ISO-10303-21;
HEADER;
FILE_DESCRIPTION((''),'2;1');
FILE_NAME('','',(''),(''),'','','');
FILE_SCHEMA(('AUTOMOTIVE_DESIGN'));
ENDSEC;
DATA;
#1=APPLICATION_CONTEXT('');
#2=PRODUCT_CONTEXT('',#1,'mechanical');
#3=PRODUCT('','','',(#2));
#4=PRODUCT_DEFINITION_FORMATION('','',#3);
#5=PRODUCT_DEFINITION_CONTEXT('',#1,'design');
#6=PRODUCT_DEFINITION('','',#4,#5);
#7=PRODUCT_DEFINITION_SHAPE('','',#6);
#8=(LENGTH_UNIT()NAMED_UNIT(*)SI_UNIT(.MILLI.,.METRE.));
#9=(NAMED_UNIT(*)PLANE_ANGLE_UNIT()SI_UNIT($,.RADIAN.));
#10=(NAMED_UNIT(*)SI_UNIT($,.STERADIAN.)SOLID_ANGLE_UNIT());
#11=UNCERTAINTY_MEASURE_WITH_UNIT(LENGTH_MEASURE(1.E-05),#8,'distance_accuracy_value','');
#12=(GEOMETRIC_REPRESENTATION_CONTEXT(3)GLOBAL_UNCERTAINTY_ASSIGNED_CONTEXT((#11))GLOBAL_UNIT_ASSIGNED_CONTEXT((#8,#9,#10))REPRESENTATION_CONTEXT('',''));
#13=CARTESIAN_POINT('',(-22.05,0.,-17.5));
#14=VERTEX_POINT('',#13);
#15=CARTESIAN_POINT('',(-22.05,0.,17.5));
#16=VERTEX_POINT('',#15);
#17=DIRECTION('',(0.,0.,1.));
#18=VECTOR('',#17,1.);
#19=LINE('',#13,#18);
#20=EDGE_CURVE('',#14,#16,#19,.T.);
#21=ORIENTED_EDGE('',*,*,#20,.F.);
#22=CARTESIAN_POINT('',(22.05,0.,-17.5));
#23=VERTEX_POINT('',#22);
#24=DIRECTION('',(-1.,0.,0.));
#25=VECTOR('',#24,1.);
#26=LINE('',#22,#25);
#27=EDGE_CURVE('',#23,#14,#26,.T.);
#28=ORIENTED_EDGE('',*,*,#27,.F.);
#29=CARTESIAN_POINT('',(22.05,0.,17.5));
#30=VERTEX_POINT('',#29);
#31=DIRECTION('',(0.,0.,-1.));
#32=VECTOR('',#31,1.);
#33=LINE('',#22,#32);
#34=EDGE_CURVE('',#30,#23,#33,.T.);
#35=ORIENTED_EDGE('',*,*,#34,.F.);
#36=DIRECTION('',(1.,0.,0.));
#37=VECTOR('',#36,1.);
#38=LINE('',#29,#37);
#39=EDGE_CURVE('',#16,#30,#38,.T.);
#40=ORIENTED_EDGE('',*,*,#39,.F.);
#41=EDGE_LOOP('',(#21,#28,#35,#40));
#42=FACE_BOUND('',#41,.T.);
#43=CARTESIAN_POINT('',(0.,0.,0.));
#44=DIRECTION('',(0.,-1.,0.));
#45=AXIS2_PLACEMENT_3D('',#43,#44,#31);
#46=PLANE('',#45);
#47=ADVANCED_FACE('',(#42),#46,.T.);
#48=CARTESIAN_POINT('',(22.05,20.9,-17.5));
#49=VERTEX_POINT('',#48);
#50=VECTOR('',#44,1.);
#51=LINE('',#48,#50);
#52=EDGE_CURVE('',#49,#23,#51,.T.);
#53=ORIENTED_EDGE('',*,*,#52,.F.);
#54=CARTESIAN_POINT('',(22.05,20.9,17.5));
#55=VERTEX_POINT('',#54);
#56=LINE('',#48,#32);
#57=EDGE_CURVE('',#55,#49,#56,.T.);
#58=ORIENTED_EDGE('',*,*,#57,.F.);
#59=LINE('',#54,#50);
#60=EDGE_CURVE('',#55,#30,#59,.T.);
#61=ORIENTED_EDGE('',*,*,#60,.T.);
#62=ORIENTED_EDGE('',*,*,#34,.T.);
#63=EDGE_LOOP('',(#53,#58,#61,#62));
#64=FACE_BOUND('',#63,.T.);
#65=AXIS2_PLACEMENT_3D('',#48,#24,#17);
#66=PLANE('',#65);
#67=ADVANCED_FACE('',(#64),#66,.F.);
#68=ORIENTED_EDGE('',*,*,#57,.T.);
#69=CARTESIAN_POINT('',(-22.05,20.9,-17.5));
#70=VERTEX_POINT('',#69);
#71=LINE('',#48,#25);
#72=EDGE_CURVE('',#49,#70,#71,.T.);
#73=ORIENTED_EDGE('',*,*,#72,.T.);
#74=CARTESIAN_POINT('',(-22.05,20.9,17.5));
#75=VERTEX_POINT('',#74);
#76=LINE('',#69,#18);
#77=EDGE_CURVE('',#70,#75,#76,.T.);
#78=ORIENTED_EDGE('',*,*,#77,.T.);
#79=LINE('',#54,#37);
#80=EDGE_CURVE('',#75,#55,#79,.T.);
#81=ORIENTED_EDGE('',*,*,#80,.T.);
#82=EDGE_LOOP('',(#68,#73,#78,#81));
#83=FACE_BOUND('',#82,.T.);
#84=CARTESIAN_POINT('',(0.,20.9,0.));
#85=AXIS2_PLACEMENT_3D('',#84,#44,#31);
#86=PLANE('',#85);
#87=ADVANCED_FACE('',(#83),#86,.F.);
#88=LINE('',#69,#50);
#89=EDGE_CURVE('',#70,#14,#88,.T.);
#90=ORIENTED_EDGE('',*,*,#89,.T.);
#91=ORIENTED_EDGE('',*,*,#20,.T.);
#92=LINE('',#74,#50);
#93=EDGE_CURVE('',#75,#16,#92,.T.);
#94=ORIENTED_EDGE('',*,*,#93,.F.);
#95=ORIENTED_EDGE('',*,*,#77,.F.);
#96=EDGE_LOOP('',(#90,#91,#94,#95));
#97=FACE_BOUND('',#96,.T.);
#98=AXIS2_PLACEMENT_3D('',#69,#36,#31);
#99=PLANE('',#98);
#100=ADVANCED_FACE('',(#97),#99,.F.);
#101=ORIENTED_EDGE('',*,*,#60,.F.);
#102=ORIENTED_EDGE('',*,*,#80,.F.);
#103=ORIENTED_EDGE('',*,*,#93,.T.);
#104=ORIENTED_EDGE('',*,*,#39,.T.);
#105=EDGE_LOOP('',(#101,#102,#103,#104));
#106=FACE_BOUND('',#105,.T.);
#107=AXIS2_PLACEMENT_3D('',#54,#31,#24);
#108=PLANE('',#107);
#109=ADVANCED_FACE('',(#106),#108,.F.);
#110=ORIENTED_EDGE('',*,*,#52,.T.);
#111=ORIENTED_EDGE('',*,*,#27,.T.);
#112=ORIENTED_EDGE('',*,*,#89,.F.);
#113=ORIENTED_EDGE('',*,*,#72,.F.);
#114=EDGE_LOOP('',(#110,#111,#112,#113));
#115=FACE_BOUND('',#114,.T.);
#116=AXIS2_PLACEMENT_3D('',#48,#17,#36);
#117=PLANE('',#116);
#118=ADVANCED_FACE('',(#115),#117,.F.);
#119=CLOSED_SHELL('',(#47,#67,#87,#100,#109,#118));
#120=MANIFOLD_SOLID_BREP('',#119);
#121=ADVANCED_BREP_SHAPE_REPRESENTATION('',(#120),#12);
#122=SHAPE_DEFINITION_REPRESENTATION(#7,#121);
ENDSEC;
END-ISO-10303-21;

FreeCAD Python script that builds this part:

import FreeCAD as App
import Part
import Sketcher
Q = App.Units.Quantity


def add_polygon(sketch, points):
    """Adds a closed chain of lines whose ends are joined by coincident constraints."""
    first, n = sketch.GeometryCount, len(points)
    for a, b in zip(points, points[1:] + points[:1]):
        sketch.addGeometry(Part.LineSegment(App.Vector(*a, 0), App.Vector(*b, 0)), False)
    for i in range(n):
        sketch.addConstraint(Sketcher.Constraint("Coincident", first + i, 2, first + (i + 1) % n, 1))

doc = App.newDocument("Part")
body = doc.addObject("PartDesign::Body", "Body")

sketch1 = body.newObject("Sketcher::SketchObject", "Sketch")
sketch1.AttachmentSupport = (doc.getObject("XZ_Plane"), [""])
sketch1.MapMode = "FlatFace"
add_polygon(sketch1, [(-22, -18), (-22, 18), (22, 18), (22, -18)])
sketch1.addConstraint([
    Sketcher.Constraint("Vertical", 0),
    Sketcher.Constraint("Horizontal", 1),
    Sketcher.Constraint("Vertical", 2),
    Sketcher.Constraint("Horizontal", 3),
    Sketcher.Constraint("Symmetric", 0, 2, 2, 2, -1, 1),
    Sketcher.Constraint("DistanceY", 0, 1, 0, 2, Q("35 mm")),
    Sketcher.Constraint("DistanceX", 1, 1, 1, 2, Q("44.1 mm")),
])
pad1 = body.newObject("PartDesign::Pad", "Pad")
pad1.Profile = sketch1
pad1.Length = 20.9
pad1.Reversed = True

sketch2 = body.newObject("Sketcher::SketchObject", "Sketch001")
sketch2.AttachmentSupport = (doc.getObject("XZ_Plane"), [""])
sketch2.MapMode = "FlatFace"
sketch2.AttachmentOffset = App.Placement(App.Vector(0, 0, -20.9), App.Rotation())
add_polygon(sketch2, [(-4, -4), (-4, 4), (4, 4), (4, -4)])
sketch2.addConstraint([
    Sketcher.Constraint("Vertical", 0),
    Sketcher.Constraint("Horizontal", 1),
    Sketcher.Constraint("Vertical", 2),
    Sketcher.Constraint("Horizontal", 3),
    Sketcher.Constraint("Symmetric", 0, 2, 2, 2, -1, 1),
    Sketcher.Constraint("Equal", 3, 0),
    Sketcher.Constraint("DistanceX", 1, 1, 1, 2, Q("8 mm")),
])
pad2 = body.newObject("PartDesign::Pad", "Pad001")
pad2.Profile = sketch2
pad2.Length = 109.1
pad2.Reversed = True

sketch3 = body.newObject("Sketcher::SketchObject", "Sketch002")
sketch3.AttachmentSupport = (doc.getObject("XZ_Plane"), [""])
sketch3.MapMode = "FlatFace"
sketch3.AttachmentOffset = App.Placement(App.Vector(0, 0, -130), App.Rotation())
add_polygon(sketch3, [(-1.5, -1.5), (-1.5, 1.5), (1.5, 1.5), (1.5, -1.5)])
sketch3.addConstraint([
    Sketcher.Constraint("Vertical", 0),
    Sketcher.Constraint("Horizontal", 1),
    Sketcher.Constraint("Vertical", 2),
    Sketcher.Constraint("Horizontal", 3),
    Sketcher.Constraint("Symmetric", 0, 2, 2, 2, -1, 1),
    Sketcher.Constraint("Equal", 3, 0),
    Sketcher.Constraint("DistanceX", 1, 1, 1, 2, Q("3 mm")),
])
pad3 = body.newObject("PartDesign::Pad", "Pad002")
pad3.Profile = sketch3
pad3.Length = 109
pad3.Reversed = True

sketch4 = body.newObject("Sketcher::SketchObject", "Sketch003")
sketch4.AttachmentSupport = (doc.getObject("XZ_Plane"), [""])
sketch4.MapMode = "FlatFace"
sketch4.AttachmentOffset = App.Placement(App.Vector(0, 0, -20.9), App.Rotation())
add_polygon(sketch4, [(-65, -65), (-65, 65), (65, 65), (65, -65)])
sketch4.addConstraint([
    Sketcher.Constraint("Vertical", 0),
    Sketcher.Constraint("Horizontal", 1),
    Sketcher.Constraint("Vertical", 2),
    Sketcher.Constraint("Horizontal", 3),
    Sketcher.Constraint("Symmetric", 0, 2, 2, 2, -1, 1),
    Sketcher.Constraint("Equal", 3, 0),
    Sketcher.Constraint("DistanceX", 1, 1, 1, 2, Q("130 mm")),
])
pocket1 = body.newObject("PartDesign::Pocket", "Pocket")
pocket1.Profile = sketch4
pocket1.Type = "ThroughAll"

doc.recompute()
